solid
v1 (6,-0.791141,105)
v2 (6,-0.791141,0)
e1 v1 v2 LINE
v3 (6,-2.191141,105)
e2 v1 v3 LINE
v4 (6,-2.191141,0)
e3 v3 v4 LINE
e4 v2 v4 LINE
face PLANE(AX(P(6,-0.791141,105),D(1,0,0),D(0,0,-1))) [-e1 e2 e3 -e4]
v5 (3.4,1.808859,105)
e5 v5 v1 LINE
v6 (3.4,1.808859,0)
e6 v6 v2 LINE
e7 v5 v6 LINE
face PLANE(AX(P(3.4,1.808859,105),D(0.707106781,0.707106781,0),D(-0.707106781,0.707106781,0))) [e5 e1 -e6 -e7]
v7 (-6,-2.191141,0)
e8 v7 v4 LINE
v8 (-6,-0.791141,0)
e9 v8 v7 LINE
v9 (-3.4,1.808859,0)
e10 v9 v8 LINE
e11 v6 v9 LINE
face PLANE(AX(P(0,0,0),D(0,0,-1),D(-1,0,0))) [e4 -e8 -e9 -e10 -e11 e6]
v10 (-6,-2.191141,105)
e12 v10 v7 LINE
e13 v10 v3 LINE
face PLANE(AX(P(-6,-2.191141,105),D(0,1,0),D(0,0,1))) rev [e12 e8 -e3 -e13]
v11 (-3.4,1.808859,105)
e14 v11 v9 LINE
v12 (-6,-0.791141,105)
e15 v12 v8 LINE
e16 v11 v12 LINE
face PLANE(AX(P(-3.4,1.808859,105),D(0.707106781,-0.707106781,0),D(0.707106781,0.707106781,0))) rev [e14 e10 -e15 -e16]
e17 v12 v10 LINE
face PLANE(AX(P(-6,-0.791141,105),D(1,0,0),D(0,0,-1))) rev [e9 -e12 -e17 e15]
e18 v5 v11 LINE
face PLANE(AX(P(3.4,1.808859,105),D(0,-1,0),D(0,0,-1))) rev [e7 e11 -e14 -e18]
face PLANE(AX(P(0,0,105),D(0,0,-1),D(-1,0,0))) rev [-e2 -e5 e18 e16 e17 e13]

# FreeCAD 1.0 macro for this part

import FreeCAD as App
import Part
import Sketcher
Q = App.Units.Quantity


def add_polygon(sketch, points):
    """Adds a closed chain of lines whose ends are joined by coincident constraints."""
    first, n = sketch.GeometryCount, len(points)
    for a, b in zip(points, points[1:] + points[:1]):
        sketch.addGeometry(Part.LineSegment(App.Vector(*a, 0), App.Vector(*b, 0)), False)
    for i in range(n):
        sketch.addConstraint(Sketcher.Constraint("Coincident", first + i, 2, first + (i + 1) % n, 1))

doc = App.newDocument("Part")
body = doc.addObject("PartDesign::Body", "Body")

# Sketch on XY plane
sketch1 = body.newObject("Sketcher::SketchObject", "Sketch")
sketch1.AttachmentSupport = (doc.getObject("XY_Plane"), [""])
sketch1.MapMode = "FlatFace"
add_polygon(sketch1, [(3.4, 1.808859), (-3.4, 1.808859), (-6, -0.791141), (-6, -2.191141), (6, -2.191141), (6, -0.791141)])  # lines 0-5
sketch1.addConstraint([
    Sketcher.Constraint("Horizontal", 0),
    Sketcher.Constraint("Vertical", 2),
    Sketcher.Constraint("Horizontal", 3),
    Sketcher.Constraint("Vertical", 4),
    Sketcher.Constraint("Symmetric", 1, 2, 4, 2, -2),
    Sketcher.Constraint("Perpendicular", 1, 5),
    Sketcher.Constraint("Equal", 1, 5),
    Sketcher.Constraint("DistanceX", 3, 1, 3, 2, Q("12 mm")),
    Sketcher.Constraint("DistanceX", 0, 2, 0, 1, Q("6.8 mm")),
    Sketcher.Constraint("DistanceY", 2, 2, 2, 1, Q("1.4 mm")),
    Sketcher.Constraint("DistanceY", -1, 1, 0, 2, Q("1.808859 mm")),
])
pad1 = body.newObject("PartDesign::Pad", "Pad")
pad1.Profile = sketch1
pad1.Length = 105

doc.recompute()
